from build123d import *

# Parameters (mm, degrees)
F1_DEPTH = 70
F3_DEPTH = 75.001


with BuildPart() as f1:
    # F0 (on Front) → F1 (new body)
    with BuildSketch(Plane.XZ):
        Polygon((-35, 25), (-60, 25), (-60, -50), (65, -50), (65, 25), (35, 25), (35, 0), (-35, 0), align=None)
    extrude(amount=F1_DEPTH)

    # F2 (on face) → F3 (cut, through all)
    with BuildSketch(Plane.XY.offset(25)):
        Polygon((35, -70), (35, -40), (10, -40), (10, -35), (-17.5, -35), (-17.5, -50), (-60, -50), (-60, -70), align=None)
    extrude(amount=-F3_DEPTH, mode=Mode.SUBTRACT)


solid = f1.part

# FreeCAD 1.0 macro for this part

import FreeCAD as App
import Part
import Sketcher

V = App.Vector
Q = App.Units.Quantity

doc = App.newDocument("Part")
body = doc.addObject("PartDesign::Body", "Body")

sketch1 = body.newObject("Sketcher::SketchObject", "Sketch")
sketch1.AttachmentSupport = (doc.getObject("XZ_Plane"), [""])
sketch1.MapMode = "FlatFace"
sketch1.addGeometry(Part.LineSegment(V(-35, 25, 0), V(-60, 25, 0)), False)
sketch1.addGeometry(Part.LineSegment(V(-60, 25, 0), V(-60, -50, 0)), False)
sketch1.addGeometry(Part.LineSegment(V(-60, -50, 0), V(65, -50, 0)), False)
sketch1.addGeometry(Part.LineSegment(V(65, -50, 0), V(65, 25, 0)), False)
sketch1.addGeometry(Part.LineSegment(V(65, 25, 0), V(35, 25, 0)), False)
sketch1.addGeometry(Part.LineSegment(V(35, 25, 0), V(35, 0, 0)), False)
sketch1.addGeometry(Part.LineSegment(V(35, 0, 0), V(-35, 0, 0)), False)
sketch1.addGeometry(Part.LineSegment(V(-35, 0, 0), V(-35, 25, 0)), False)
sketch1.addConstraint(Sketcher.Constraint("Coincident", 0, 2, 1, 1))
sketch1.addConstraint(Sketcher.Constraint("Coincident", 1, 2, 2, 1))
sketch1.addConstraint(Sketcher.Constraint("Coincident", 2, 2, 3, 1))
sketch1.addConstraint(Sketcher.Constraint("Coincident", 3, 2, 4, 1))
sketch1.addConstraint(Sketcher.Constraint("Coincident", 4, 2, 5, 1))
sketch1.addConstraint(Sketcher.Constraint("Coincident", 5, 2, 6, 1))
sketch1.addConstraint(Sketcher.Constraint("Coincident", 6, 2, 7, 1))
sketch1.addConstraint(Sketcher.Constraint("Coincident", 7, 2, 0, 1))
sketch1.addConstraint(Sketcher.Constraint("Horizontal", 0))
sketch1.addConstraint(Sketcher.Constraint("Vertical", 1))
sketch1.addConstraint(Sketcher.Constraint("Horizontal", 2))
sketch1.addConstraint(Sketcher.Constraint("Vertical", 3))
sketch1.addConstraint(Sketcher.Constraint("Horizontal", 4))
sketch1.addConstraint(Sketcher.Constraint("Vertical", 5))
sketch1.addConstraint(Sketcher.Constraint("Horizontal", 6))
sketch1.addConstraint(Sketcher.Constraint("Vertical", 7))
sketch1.addConstraint(Sketcher.Constraint("Symmetric", 5, 2, 6, 2, -1, 1))
sketch1.addConstraint(Sketcher.Constraint("Horizontal", 0, 2, 3, 2))
sketch1.addConstraint(Sketcher.Constraint("Equal", 0, 5))
sketch1.addConstraint(Sketcher.Constraint("DistanceX", 0, 2, 0, 1, Q("25 mm")))
sketch1.addConstraint(Sketcher.Constraint("DistanceX", 2, 1, 2, 2, Q("125 mm")))
sketch1.addConstraint(Sketcher.Constraint("DistanceX", 4, 2, 4, 1, Q("30 mm")))
sketch1.addConstraint(Sketcher.Constraint("DistanceY", 1, 2, 1, 1, Q("75 mm")))
pad1 = body.newObject("PartDesign::Pad", "Pad")
pad1.Profile = sketch1
pad1.Length = 70

sketch2 = body.newObject("Sketcher::SketchObject", "Sketch001")
sketch2.AttachmentSupport = (doc.getObject("XY_Plane"), [""])
sketch2.MapMode = "FlatFace"
sketch2.AttachmentOffset = App.Placement(V(0, 0, 25), App.Rotation())
sketch2.addGeometry(Part.LineSegment(V(35, -70, 0), V(35, -40, 0)), False)
sketch2.addGeometry(Part.LineSegment(V(35, -40, 0), V(10, -40, 0)), False)
sketch2.addGeometry(Part.LineSegment(V(10, -40, 0), V(10, -35, 0)), False)
sketch2.addGeometry(Part.LineSegment(V(10, -35, 0), V(-18, -35, 0)), False)
sketch2.addGeometry(Part.LineSegment(V(-18, -35, 0), V(-18, -50, 0)), False)
sketch2.addGeometry(Part.LineSegment(V(-18, -50, 0), V(-60, -50, 0)), False)
sketch2.addGeometry(Part.LineSegment(V(-60, -50, 0), V(-60, -70, 0)), False)
sketch2.addGeometry(Part.LineSegment(V(-60, -70, 0), V(35, -70, 0)), False)
sketch2.addConstraint(Sketcher.Constraint("Coincident", 0, 2, 1, 1))
sketch2.addConstraint(Sketcher.Constraint("Coincident", 1, 2, 2, 1))
sketch2.addConstraint(Sketcher.Constraint("Coincident", 2, 2, 3, 1))
sketch2.addConstraint(Sketcher.Constraint("Coincident", 3, 2, 4, 1))
sketch2.addConstraint(Sketcher.Constraint("Coincident", 4, 2, 5, 1))
sketch2.addConstraint(Sketcher.Constraint("Coincident", 5, 2, 6, 1))
sketch2.addConstraint(Sketcher.Constraint("Coincident", 6, 2, 7, 1))
sketch2.addConstraint(Sketcher.Constraint("Coincident", 7, 2, 0, 1))
sketch2.addConstraint(Sketcher.Constraint("Vertical", 0))
sketch2.addConstraint(Sketcher.Constraint("Horizontal", 1))
sketch2.addConstraint(Sketcher.Constraint("Vertical", 2))
sketch2.addConstraint(Sketcher.Constraint("Horizontal", 3))
sketch2.addConstraint(Sketcher.Constraint("Vertical", 4))
sketch2.addConstraint(Sketcher.Constraint("Horizontal", 5))
sketch2.addConstraint(Sketcher.Constraint("Vertical", 6))
sketch2.addConstraint(Sketcher.Constraint("Horizontal", 7))
sketch2.addConstraint(Sketcher.Constraint("DistanceX", 1, 2, 1, 1, Q("25 mm")))
sketch2.addConstraint(Sketcher.Constraint("DistanceX", 7, 1, 7, 2, Q("95 mm")))
sketch2.addConstraint(Sketcher.Constraint("DistanceY", 0, 1, 0, 2, Q("30 mm")))
sketch2.addConstraint(Sketcher.Constraint("DistanceY", 2, 1, 2, 2, Q("5 mm")))
sketch2.addConstraint(Sketcher.Constraint("DistanceY", 4, 2, 4, 1, Q("15 mm")))
sketch2.addConstraint(Sketcher.Constraint("DistanceX", 3, 2, 3, 1, Q("27.5 mm")))
sketch2.addConstraint(Sketcher.Constraint("DistanceX", -1, 1, 0, 2, Q("35 mm")))
sketch2.addConstraint(Sketcher.Constraint("DistanceY", 0, 2, -1, 1, Q("40 mm")))
pocket1 = body.newObject("PartDesign::Pocket", "Pocket")
pocket1.Profile = sketch2
pocket1.Type = "ThroughAll"

doc.recompute()
